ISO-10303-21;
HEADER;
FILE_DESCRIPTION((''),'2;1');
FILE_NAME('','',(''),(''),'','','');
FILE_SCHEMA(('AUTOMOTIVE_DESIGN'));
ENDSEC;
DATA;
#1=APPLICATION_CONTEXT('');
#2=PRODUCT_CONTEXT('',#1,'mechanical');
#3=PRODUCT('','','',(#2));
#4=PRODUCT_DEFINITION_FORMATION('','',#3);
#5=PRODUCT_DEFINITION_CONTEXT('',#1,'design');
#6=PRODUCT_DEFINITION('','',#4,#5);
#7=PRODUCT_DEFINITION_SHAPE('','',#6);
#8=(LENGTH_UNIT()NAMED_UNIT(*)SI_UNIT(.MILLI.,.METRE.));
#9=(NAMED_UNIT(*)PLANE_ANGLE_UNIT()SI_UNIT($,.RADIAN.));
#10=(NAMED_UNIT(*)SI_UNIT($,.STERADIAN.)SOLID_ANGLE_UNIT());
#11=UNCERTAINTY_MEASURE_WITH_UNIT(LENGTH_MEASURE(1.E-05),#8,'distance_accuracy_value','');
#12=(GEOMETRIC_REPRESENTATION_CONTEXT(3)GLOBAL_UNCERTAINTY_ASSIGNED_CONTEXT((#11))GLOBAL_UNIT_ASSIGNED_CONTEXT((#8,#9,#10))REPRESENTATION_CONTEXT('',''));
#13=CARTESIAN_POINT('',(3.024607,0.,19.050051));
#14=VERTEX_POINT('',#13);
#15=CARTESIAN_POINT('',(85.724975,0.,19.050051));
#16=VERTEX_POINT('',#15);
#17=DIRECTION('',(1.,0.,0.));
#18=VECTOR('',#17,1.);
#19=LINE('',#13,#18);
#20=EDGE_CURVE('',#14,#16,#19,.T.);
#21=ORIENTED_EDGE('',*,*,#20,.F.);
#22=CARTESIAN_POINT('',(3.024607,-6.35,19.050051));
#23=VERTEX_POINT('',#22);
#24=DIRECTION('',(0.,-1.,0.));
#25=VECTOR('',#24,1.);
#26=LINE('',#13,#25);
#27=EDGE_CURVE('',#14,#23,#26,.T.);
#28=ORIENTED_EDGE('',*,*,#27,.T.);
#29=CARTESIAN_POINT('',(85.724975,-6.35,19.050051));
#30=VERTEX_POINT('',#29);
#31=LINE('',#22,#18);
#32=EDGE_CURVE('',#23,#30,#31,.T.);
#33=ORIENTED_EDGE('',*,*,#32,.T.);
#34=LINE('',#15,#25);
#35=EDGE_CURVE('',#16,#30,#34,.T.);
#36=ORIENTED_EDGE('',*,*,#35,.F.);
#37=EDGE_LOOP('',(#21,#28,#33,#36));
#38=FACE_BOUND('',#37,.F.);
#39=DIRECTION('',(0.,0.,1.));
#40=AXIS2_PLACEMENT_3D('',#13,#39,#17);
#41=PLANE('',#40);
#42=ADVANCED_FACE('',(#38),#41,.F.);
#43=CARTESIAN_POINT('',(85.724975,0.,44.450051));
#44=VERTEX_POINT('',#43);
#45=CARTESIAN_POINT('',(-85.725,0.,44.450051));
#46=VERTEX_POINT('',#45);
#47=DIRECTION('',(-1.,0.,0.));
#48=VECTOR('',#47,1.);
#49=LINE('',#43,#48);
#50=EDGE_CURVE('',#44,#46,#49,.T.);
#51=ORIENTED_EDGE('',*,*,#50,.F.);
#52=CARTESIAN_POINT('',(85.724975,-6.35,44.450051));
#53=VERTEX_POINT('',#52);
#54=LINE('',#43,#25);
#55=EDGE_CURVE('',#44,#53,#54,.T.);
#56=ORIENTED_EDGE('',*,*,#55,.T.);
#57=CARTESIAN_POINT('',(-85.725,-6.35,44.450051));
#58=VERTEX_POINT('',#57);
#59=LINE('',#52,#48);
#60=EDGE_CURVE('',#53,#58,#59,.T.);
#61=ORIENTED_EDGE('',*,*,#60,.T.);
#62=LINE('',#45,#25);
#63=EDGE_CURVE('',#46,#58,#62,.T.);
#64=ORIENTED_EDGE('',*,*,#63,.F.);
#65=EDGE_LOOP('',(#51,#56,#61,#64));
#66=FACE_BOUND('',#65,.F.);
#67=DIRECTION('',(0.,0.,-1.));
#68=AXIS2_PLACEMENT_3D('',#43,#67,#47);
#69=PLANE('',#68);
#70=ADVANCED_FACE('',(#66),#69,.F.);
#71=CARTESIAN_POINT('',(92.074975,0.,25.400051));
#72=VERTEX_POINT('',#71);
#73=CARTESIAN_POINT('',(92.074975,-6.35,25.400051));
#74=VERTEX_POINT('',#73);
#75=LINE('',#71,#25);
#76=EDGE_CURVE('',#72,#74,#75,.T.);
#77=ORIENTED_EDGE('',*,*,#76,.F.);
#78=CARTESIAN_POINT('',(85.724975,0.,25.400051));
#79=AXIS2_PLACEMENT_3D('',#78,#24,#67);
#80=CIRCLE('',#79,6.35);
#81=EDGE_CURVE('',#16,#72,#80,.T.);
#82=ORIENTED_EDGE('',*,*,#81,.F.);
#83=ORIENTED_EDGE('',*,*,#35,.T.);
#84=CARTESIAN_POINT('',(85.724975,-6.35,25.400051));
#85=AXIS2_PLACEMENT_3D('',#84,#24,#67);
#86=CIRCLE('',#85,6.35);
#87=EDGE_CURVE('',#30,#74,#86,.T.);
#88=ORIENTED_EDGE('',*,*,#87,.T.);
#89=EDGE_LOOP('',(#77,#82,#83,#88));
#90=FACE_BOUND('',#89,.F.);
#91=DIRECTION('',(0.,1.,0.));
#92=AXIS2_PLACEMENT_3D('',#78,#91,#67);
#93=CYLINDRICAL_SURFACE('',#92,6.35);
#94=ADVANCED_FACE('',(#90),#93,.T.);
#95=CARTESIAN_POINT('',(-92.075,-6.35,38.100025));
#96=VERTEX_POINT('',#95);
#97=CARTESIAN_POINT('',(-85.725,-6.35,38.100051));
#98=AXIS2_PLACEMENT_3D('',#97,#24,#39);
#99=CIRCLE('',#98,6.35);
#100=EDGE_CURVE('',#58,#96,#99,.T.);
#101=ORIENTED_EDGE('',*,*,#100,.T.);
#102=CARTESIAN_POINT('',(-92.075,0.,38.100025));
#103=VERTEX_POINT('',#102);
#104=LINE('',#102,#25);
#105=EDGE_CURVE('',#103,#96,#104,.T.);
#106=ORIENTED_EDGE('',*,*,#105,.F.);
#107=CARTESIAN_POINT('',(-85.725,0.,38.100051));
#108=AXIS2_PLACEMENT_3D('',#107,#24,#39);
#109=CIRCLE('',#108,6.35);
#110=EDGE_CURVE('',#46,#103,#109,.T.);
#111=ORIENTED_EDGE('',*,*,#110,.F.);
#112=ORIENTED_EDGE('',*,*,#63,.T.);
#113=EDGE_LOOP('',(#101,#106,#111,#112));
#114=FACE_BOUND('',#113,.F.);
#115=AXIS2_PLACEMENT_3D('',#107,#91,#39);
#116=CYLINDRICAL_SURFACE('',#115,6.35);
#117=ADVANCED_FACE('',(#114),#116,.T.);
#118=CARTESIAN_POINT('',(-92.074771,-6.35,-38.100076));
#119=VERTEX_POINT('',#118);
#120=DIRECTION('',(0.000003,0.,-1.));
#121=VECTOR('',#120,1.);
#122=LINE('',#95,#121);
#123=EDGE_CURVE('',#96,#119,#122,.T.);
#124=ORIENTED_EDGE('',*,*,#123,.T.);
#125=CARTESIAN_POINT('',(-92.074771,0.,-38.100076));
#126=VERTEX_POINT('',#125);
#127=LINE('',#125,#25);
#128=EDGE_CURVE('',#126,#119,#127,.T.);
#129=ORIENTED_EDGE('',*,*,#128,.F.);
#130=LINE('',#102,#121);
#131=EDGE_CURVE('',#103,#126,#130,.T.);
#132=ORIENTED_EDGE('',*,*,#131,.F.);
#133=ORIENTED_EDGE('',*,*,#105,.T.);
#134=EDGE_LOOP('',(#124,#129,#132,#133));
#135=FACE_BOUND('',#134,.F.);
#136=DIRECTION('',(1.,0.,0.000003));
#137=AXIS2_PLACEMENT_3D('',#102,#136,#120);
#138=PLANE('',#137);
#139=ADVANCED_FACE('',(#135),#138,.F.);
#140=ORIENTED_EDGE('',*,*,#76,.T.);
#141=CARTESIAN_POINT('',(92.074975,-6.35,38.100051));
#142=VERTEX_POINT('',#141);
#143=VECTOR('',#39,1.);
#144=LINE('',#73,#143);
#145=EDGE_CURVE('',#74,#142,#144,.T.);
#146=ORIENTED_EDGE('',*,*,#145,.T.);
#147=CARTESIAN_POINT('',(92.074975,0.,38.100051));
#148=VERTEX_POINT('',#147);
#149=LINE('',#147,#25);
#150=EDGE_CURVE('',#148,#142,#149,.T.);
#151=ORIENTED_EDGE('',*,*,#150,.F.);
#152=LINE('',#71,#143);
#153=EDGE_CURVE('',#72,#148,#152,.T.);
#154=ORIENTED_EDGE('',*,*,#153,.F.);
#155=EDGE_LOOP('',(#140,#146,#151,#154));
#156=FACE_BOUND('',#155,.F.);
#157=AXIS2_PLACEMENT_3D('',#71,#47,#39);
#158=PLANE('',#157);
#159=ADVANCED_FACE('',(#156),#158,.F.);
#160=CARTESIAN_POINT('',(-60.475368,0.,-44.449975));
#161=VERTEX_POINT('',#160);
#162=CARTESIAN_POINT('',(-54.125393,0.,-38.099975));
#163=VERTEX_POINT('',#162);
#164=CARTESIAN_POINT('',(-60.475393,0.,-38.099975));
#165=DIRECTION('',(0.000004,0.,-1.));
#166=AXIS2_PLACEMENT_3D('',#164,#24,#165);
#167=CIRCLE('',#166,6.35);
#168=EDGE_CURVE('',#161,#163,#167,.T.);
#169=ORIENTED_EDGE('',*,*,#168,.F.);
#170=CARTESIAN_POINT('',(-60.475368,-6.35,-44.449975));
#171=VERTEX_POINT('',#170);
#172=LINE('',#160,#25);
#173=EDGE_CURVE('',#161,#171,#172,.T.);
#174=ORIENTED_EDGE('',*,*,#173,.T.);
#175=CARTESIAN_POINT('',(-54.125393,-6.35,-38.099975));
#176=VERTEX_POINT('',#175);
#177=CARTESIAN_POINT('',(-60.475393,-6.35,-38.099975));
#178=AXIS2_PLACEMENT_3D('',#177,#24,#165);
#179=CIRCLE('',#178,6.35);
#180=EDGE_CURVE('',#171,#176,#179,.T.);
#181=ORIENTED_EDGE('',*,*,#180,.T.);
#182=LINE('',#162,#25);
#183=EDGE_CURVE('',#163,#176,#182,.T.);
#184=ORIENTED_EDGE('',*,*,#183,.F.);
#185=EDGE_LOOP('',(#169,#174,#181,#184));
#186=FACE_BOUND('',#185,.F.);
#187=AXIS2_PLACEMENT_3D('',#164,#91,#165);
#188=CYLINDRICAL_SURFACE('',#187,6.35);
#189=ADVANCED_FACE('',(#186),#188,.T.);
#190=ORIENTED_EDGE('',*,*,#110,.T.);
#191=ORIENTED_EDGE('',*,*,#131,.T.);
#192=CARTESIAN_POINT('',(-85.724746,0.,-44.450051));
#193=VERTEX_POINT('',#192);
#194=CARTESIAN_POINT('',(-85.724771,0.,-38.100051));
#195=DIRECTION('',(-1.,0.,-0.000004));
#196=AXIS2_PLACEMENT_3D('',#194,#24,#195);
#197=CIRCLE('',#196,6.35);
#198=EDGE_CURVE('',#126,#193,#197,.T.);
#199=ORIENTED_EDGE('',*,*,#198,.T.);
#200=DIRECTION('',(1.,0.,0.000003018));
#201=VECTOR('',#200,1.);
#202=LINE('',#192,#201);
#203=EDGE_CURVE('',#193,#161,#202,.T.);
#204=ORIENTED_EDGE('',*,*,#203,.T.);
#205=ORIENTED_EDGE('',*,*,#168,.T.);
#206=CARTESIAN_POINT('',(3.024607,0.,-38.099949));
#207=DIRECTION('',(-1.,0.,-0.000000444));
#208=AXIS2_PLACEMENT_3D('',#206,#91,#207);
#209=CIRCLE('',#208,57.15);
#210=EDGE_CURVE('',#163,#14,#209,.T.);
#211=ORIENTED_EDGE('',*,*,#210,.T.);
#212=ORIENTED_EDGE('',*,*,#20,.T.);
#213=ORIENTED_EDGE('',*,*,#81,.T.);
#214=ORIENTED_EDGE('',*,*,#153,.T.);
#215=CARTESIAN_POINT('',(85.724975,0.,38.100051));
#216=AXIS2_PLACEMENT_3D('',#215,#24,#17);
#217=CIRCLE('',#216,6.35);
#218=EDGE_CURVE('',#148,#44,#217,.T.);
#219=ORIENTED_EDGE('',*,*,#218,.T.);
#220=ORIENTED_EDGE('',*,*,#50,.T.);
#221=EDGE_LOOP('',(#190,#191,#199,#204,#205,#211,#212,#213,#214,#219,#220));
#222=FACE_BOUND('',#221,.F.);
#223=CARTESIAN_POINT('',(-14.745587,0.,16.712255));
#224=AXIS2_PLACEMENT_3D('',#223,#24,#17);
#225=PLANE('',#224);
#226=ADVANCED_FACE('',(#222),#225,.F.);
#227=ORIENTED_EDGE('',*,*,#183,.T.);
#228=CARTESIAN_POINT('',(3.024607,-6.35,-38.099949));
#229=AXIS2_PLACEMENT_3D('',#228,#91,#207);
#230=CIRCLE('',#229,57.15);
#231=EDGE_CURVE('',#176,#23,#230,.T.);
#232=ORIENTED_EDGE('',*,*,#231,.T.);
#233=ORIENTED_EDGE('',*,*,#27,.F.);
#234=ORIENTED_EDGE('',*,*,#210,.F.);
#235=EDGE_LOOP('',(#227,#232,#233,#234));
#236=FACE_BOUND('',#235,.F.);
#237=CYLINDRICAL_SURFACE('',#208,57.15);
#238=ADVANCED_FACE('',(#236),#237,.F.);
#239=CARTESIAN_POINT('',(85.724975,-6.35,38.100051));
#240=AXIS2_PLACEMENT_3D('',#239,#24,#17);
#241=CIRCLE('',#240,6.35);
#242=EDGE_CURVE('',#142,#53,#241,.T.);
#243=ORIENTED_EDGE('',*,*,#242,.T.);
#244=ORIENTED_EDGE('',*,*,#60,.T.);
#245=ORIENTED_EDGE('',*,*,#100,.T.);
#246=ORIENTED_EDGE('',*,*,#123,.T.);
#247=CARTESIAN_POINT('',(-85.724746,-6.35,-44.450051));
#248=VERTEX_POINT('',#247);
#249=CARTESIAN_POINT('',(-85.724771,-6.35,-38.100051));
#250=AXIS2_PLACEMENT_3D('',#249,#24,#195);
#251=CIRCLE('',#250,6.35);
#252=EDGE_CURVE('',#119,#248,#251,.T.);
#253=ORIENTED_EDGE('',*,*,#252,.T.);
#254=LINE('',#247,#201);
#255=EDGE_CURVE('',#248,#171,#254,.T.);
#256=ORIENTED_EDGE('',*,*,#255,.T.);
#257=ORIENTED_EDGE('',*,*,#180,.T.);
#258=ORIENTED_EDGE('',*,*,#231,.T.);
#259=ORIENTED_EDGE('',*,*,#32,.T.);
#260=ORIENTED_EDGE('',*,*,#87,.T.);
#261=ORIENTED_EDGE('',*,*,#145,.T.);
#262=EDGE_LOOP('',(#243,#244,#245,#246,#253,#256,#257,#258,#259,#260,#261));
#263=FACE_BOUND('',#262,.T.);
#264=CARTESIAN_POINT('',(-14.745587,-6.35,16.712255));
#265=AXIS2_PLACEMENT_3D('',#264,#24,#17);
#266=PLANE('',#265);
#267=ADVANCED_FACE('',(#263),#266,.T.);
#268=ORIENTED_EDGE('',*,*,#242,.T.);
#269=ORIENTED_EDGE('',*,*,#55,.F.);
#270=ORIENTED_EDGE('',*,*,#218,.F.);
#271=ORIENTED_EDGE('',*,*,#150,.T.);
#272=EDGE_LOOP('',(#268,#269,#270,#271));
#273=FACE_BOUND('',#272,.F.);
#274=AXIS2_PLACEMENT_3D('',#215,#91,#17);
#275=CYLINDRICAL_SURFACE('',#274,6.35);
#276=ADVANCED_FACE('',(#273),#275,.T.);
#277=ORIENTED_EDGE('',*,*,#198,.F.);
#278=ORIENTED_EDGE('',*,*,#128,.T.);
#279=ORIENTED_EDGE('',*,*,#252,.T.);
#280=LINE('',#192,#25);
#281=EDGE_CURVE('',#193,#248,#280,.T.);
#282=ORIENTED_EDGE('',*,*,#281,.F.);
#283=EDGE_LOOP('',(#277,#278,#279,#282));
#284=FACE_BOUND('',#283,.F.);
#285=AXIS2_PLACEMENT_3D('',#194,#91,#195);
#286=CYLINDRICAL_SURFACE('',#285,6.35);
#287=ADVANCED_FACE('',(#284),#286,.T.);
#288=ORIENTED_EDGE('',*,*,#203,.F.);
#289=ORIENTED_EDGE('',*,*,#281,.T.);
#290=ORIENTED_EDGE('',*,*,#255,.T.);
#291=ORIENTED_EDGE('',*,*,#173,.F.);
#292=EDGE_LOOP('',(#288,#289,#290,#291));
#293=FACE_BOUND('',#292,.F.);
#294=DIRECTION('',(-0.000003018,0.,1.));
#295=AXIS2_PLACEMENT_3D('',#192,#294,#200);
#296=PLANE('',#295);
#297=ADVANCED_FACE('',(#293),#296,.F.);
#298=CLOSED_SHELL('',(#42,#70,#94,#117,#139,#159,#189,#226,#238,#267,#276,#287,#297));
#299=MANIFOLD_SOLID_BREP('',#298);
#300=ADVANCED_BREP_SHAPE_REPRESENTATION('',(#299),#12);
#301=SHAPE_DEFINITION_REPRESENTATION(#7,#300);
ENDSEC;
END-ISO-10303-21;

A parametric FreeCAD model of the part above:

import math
import FreeCAD as App
import Part
import Sketcher
from FreeCAD import Vector
Q = App.Units.Quantity

doc = App.newDocument("Part")
body = doc.addObject("PartDesign::Body", "Body")

# Sketch on XZ plane
sketch1 = body.newObject("Sketcher::SketchObject", "Sketch")
sketch1.AttachmentSupport = (doc.getObject("XZ_Plane"), [""])
sketch1.MapMode = "FlatFace"
sketch1.addGeometry([
    Part.LineSegment(Vector(92, 25, 0), Vector(92, 38, 0)),  # 0
    Part.ArcOfCircle(Part.Circle(Vector(86, 38, 0), Vector(0, 0, 1), 6), math.radians(0), math.radians(90)),  # 1
    Part.LineSegment(Vector(86, 44, 0), Vector(-86, 44, 0)),  # 2
    Part.ArcOfCircle(Part.Circle(Vector(-86, 38, 0), Vector(0, 0, 1), 6), math.radians(90), math.radians(180)),  # 3
    Part.LineSegment(Vector(-92, 38, 0), Vector(-92, -38, 0)),  # 4
    Part.ArcOfCircle(Part.Circle(Vector(-86, -38, 0), Vector(0, 0, 1), 6), math.radians(-180), math.radians(-90)),  # 5
    Part.LineSegment(Vector(-86, -44, 0), Vector(-60, -44, 0)),  # 6
    Part.ArcOfCircle(Part.Circle(Vector(-60, -38, 0), Vector(0, 0, 1), 6), math.radians(-90), math.radians(0)),  # 7
    Part.ArcOfCircle(Part.Circle(Vector(3, -38, 0), Vector(0, 0, 1), 57), math.radians(90), math.radians(180)),  # 8
    Part.LineSegment(Vector(3, 19, 0), Vector(86, 19, 0)),  # 9
    Part.ArcOfCircle(Part.Circle(Vector(86, 25, 0), Vector(0, 0, 1), 6), math.radians(-90), math.radians(0)),  # 10
], False)
sketch1.addConstraint([
    Sketcher.Constraint("Tangent", 0, 2, 1, 1),
    Sketcher.Constraint("Tangent", 1, 2, 2, 1),
    Sketcher.Constraint("Tangent", 2, 2, 3, 1),
    Sketcher.Constraint("Tangent", 3, 2, 4, 1),
    Sketcher.Constraint("Tangent", 4, 2, 5, 1),
    Sketcher.Constraint("Tangent", 5, 2, 6, 1),
    Sketcher.Constraint("Tangent", 6, 2, 7, 1),
    Sketcher.Constraint("Tangent", 7, 2, 8, 2),
    Sketcher.Constraint("Tangent", 8, 1, 9, 1),
    Sketcher.Constraint("Tangent", 9, 2, 10, 1),
    Sketcher.Constraint("Tangent", 10, 2, 0, 1),
    Sketcher.Constraint("Vertical", 0),
    Sketcher.Constraint("Horizontal", 2),
    Sketcher.Constraint("Horizontal", 9),
    Sketcher.Constraint("Equal", 1, 3),
    Sketcher.Constraint("Equal", 3, 5),
    Sketcher.Constraint("Equal", 5, 7),
    Sketcher.Constraint("Equal", 7, 10),
    Sketcher.Constraint("Perpendicular", 4, 6),
    Sketcher.Constraint("Radius", 1, Q("0.25 in")),
    Sketcher.Constraint("Radius", 8, Q("2.25 in")),
    Sketcher.Constraint("DistanceY", 0, 1, 0, 2, Q("0.5 in")),
    Sketcher.Constraint("DistanceY", 7, 3, 3, 2, Q("3 in")),
    Sketcher.Constraint("DistanceX", 3, 3, -1, 1, Q("3.375 in")),
    Sketcher.Constraint("Distance", 4, 76.200102),
    Sketcher.Constraint("Distance", 6, 25.249378),
    Sketcher.Constraint("DistanceX", 2, 2, 2, 1, 171.449975),
    Sketcher.Constraint("DistanceY", -1, 1, 1, 3, 38.100051),
])
pad1 = body.newObject("PartDesign::Pad", "Pad")
pad1.Profile = sketch1
pad1.Length = Q("0.25 in")

doc.recompute()
